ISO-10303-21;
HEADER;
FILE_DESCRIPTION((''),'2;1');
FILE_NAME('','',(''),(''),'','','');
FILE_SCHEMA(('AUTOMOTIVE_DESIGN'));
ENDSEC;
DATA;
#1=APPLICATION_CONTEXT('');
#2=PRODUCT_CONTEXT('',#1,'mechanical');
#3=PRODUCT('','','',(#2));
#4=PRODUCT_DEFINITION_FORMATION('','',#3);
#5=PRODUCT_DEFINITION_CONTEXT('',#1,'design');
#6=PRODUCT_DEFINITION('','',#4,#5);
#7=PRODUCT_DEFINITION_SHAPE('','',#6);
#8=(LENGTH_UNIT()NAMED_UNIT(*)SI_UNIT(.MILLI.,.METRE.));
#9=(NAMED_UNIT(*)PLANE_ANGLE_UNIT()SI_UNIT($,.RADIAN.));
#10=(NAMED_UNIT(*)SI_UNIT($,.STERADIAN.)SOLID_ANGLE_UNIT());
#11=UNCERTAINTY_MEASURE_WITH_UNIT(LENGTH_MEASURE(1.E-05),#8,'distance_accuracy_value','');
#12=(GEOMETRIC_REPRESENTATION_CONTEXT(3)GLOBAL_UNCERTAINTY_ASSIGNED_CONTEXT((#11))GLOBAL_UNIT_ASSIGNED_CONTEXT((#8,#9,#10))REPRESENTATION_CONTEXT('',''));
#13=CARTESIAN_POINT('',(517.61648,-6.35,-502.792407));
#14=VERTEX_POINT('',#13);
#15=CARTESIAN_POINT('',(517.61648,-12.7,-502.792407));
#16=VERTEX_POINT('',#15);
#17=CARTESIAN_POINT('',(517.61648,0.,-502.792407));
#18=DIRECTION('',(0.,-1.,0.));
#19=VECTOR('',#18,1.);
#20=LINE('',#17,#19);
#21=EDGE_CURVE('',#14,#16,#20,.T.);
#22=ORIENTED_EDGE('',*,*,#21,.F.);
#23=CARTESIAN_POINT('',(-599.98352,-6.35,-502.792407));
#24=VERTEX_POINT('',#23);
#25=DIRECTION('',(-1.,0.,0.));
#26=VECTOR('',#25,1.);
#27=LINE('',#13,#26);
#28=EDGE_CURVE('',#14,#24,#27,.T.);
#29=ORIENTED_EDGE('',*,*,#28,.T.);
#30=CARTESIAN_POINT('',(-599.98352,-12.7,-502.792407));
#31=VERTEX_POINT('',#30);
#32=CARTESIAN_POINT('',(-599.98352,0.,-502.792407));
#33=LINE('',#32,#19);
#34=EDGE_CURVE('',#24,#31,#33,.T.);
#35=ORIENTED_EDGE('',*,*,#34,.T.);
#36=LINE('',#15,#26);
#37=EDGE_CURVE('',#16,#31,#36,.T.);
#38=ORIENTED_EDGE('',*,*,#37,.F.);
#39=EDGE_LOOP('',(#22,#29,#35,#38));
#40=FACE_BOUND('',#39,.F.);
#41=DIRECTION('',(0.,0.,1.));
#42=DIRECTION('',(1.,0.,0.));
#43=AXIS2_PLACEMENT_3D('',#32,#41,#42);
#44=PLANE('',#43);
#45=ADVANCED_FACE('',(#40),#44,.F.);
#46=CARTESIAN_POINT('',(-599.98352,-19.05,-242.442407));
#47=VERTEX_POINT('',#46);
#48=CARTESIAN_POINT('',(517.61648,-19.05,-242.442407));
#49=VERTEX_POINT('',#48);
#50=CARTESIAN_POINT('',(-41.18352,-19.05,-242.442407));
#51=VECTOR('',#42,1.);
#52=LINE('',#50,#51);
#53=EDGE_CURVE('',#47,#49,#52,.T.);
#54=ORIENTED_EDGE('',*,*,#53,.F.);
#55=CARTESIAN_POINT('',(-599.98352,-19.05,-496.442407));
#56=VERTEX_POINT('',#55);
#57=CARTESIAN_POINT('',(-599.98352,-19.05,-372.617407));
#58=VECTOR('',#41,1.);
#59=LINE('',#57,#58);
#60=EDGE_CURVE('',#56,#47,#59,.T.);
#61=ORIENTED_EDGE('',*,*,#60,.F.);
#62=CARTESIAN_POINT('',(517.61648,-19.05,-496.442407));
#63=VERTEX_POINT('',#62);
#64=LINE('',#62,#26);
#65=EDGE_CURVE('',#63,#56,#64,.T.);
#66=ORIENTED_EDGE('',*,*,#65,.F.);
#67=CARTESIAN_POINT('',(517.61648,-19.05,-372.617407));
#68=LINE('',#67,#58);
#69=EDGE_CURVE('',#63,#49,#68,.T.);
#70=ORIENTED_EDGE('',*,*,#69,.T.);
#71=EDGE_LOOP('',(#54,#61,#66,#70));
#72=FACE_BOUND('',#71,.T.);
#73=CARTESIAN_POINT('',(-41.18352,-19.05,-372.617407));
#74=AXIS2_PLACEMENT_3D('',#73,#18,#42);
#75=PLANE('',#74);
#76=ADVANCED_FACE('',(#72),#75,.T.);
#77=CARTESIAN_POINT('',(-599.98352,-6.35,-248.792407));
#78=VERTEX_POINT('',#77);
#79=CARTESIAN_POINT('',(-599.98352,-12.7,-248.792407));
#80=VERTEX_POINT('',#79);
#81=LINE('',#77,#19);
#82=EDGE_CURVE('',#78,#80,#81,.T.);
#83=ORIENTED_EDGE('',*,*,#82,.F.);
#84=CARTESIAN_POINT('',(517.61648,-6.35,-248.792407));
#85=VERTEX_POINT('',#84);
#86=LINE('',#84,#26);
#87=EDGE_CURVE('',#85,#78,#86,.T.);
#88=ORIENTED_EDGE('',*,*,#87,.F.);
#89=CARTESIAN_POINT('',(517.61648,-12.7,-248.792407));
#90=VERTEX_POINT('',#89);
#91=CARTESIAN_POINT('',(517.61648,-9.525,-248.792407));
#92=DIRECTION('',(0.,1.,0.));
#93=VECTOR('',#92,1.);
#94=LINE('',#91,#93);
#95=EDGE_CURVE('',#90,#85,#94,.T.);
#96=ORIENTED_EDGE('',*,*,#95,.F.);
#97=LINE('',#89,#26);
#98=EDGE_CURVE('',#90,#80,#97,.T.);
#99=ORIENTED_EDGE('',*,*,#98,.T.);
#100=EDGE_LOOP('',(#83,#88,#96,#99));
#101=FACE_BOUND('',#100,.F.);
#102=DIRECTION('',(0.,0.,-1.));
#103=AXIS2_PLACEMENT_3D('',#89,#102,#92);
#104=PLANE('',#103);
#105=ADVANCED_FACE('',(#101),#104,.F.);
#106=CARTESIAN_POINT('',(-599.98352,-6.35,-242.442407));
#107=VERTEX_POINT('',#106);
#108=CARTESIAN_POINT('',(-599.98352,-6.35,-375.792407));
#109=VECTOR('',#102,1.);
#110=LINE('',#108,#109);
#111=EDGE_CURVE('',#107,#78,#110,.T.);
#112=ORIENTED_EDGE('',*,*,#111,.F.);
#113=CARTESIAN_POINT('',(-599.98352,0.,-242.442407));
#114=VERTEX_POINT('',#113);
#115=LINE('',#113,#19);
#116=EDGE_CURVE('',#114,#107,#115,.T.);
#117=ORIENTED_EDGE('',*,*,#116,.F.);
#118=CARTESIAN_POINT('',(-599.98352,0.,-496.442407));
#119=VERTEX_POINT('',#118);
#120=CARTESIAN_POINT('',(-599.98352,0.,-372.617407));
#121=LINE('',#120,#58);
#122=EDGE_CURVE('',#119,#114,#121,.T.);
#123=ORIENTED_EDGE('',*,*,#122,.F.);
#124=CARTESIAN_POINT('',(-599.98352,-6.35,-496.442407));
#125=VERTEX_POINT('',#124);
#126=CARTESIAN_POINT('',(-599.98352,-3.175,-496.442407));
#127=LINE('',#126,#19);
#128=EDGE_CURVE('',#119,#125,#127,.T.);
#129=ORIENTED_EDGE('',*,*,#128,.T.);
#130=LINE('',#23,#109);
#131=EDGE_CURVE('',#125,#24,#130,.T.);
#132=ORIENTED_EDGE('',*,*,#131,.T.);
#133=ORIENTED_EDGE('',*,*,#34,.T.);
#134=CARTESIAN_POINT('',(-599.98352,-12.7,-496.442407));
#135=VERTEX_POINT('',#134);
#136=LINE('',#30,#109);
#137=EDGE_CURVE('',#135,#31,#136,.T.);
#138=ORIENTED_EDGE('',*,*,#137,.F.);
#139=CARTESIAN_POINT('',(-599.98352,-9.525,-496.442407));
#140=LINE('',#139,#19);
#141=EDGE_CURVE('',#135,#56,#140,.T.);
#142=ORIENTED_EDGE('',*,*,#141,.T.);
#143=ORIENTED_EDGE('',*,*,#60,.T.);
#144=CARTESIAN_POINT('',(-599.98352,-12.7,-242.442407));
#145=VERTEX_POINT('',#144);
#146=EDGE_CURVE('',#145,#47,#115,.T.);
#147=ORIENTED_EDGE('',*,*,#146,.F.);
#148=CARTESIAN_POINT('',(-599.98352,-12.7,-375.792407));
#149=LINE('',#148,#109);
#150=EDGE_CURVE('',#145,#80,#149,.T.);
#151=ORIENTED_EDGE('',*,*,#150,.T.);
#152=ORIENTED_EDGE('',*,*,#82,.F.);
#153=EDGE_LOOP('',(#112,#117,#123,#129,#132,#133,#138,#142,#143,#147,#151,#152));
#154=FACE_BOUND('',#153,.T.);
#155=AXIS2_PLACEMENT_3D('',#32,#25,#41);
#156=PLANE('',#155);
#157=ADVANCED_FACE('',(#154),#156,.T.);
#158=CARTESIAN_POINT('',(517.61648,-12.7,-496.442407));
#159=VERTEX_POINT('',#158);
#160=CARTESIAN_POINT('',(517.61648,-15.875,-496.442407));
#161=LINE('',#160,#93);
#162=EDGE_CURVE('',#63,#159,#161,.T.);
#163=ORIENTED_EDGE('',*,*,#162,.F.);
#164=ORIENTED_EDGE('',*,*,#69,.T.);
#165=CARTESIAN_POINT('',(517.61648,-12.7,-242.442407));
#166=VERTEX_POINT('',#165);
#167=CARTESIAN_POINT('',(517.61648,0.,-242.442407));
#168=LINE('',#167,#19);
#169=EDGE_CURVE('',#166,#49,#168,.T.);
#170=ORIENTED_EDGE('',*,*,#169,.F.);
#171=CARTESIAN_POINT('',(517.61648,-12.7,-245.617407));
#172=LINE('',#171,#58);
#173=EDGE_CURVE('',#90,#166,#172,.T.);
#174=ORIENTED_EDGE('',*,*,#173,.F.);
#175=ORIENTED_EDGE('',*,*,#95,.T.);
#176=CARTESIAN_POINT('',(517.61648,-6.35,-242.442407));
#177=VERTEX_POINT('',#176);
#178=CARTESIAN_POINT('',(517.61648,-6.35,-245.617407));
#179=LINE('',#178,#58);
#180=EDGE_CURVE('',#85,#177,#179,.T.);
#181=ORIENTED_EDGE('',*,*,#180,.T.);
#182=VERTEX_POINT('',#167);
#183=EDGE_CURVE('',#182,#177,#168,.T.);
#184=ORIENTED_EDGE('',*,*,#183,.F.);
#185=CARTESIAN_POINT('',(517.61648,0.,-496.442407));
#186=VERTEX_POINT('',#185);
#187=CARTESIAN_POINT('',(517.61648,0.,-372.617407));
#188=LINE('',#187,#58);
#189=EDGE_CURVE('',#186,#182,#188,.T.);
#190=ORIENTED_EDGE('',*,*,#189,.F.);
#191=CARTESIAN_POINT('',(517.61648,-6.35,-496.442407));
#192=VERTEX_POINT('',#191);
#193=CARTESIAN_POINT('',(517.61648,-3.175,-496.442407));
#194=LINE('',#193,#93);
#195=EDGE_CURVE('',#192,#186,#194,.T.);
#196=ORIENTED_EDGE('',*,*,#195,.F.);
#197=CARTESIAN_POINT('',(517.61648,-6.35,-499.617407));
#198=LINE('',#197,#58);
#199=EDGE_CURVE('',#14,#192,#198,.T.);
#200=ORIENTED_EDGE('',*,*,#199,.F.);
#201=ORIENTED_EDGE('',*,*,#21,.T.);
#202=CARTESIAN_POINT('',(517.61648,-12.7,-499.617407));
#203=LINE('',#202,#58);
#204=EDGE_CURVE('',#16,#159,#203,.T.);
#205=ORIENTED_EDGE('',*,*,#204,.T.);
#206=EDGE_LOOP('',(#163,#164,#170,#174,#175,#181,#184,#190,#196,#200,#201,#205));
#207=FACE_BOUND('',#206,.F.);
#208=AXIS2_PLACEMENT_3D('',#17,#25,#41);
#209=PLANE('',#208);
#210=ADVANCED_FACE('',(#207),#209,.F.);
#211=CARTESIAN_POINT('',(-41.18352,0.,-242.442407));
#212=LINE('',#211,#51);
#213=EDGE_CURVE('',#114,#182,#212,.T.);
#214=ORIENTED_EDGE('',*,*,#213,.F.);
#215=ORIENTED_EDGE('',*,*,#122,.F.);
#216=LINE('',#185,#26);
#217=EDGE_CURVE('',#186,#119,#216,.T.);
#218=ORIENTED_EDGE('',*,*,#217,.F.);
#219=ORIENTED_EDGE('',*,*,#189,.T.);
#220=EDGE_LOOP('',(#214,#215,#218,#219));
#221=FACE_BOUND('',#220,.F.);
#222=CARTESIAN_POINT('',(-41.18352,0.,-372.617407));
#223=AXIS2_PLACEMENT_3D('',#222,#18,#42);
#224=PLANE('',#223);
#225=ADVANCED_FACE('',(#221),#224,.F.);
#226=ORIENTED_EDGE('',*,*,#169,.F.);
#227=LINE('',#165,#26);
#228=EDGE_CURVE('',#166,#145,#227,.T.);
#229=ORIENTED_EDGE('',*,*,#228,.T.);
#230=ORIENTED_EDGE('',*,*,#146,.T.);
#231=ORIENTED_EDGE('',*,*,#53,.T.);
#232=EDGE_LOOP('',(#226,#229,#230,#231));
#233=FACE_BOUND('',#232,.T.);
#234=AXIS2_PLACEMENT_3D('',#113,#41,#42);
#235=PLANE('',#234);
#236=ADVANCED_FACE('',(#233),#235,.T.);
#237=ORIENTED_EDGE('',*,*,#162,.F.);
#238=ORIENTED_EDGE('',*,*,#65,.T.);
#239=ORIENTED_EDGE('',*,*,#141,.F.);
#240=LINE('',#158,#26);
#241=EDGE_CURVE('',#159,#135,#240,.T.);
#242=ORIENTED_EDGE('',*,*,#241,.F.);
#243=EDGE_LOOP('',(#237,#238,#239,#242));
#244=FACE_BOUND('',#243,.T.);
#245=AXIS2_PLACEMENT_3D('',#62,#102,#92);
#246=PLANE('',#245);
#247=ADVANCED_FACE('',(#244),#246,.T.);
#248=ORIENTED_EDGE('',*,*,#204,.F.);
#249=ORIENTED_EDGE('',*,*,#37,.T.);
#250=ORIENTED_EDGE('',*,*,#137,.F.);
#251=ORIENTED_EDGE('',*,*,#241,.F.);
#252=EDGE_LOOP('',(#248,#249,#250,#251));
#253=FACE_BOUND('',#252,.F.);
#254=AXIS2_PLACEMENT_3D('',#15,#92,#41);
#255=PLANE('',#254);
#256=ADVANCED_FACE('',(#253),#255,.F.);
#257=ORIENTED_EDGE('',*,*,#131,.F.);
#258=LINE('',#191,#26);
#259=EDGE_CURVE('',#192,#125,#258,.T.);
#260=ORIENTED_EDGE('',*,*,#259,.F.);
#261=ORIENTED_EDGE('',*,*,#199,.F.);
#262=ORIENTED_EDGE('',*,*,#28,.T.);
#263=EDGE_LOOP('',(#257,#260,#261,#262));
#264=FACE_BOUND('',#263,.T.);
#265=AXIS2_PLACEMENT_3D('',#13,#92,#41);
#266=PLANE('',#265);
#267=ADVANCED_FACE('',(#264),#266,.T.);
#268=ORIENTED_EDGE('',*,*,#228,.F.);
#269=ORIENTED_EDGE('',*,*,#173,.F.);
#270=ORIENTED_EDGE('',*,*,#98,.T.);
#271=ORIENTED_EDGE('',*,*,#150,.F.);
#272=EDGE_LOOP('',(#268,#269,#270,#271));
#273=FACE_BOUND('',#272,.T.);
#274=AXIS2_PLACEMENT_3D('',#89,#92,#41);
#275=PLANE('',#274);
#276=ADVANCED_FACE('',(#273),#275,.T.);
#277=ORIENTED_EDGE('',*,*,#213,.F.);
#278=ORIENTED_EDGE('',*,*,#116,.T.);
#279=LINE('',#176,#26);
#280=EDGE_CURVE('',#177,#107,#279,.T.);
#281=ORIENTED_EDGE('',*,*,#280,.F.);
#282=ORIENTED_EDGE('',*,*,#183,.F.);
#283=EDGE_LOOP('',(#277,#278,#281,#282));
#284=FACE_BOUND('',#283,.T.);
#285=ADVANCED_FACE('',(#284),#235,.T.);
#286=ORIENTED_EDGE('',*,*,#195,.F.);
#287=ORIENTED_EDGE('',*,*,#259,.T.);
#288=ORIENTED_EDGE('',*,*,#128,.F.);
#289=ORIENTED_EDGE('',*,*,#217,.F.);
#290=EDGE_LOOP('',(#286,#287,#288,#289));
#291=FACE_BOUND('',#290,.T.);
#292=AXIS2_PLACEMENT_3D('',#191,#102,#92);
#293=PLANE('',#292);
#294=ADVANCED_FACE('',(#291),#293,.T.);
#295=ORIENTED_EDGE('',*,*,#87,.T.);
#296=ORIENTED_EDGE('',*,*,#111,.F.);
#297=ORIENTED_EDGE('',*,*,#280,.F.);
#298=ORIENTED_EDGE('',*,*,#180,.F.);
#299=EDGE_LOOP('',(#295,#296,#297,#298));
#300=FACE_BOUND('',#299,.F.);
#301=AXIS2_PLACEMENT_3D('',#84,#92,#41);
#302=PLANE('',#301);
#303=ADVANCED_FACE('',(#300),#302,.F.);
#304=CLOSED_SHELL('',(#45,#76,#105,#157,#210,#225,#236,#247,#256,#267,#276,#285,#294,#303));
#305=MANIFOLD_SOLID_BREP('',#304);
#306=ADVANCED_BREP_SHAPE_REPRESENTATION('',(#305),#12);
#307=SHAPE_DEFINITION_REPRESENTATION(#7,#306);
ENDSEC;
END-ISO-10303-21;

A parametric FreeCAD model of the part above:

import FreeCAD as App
import Part
import Sketcher
from FreeCAD import Vector
Q = App.Units.Quantity


def add_polygon(sketch, points):
    """Adds a closed chain of lines whose ends are joined by coincident constraints."""
    first, n = sketch.GeometryCount, len(points)
    for a, b in zip(points, points[1:] + points[:1]):
        sketch.addGeometry(Part.LineSegment(App.Vector(*a, 0), App.Vector(*b, 0)), False)
    for i in range(n):
        sketch.addConstraint(Sketcher.Constraint("Coincident", first + i, 2, first + (i + 1) % n, 1))

doc = App.newDocument("Part")
body = doc.addObject("PartDesign::Body", "Body")

sketch1 = body.newObject("Sketcher::SketchObject", "Sketch")
sketch1.AttachmentSupport = (doc.getObject("XZ_Plane"), [""])
sketch1.MapMode = "FlatFace"
add_polygon(sketch1, [(-600, -242), (-600, -503), (518, -503), (518, -242)])
sketch1.addConstraint([
    Sketcher.Constraint("Vertical", 0),
    Sketcher.Constraint("Horizontal", 1),
    Sketcher.Constraint("Vertical", 2),
    Sketcher.Constraint("Horizontal", 3),
    Sketcher.Constraint("DistanceX", 1, 1, 1, 2, Q("44 in")),
    Sketcher.Constraint("DistanceY", 0, 2, 0, 1, Q("10.25 in")),
    Sketcher.Constraint("DistanceX", 0, 2, -1, 1, 599.98352),
    Sketcher.Constraint("DistanceY", 0, 2, -1, 1, 502.792407),
])
pad1 = body.newObject("PartDesign::Pad", "Pad")
pad1.Profile = sketch1
pad1.Length = Q("0.75 in")

sketch2 = body.newObject("Sketcher::SketchObject", "Sketch001")
sketch2.AttachmentSupport = (doc.getObject("YZ_Plane"), [""])
sketch2.MapMode = "FlatFace"
sketch2.AttachmentOffset = App.Placement(Vector(0, 0, 517.61648), App.Rotation())
add_polygon(sketch2, [(-13, -242), (-13, -249), (-6, -249), (-6, -242)])
sketch2.addConstraint([
    Sketcher.Constraint("Vertical", 0),
    Sketcher.Constraint("Horizontal", 1),
    Sketcher.Constraint("Vertical", 2),
    Sketcher.Constraint("Horizontal", 3),
    Sketcher.Constraint("Equal", 3, 0),
    Sketcher.Constraint("DistanceX", 1, 1, 1, 2, Q("0.25 in")),
    Sketcher.Constraint("DistanceX", 0, 2, -1, 1, Q("0.5 in")),
    Sketcher.Constraint("DistanceY", 0, 2, -1, 1, 248.792407),
])
pocket1 = body.newObject("PartDesign::Pocket", "Pocket")
pocket1.Profile = sketch2
pocket1.Type = "ThroughAll"

sketch3 = body.newObject("Sketcher::SketchObject", "Sketch002")
sketch3.AttachmentSupport = (doc.getObject("YZ_Plane"), [""])
sketch3.MapMode = "FlatFace"
sketch3.AttachmentOffset = App.Placement(Vector(0, 0, 517.61648), App.Rotation())
add_polygon(sketch3, [(-19, -496), (-19, -503), (-13, -503), (-13, -496)])
add_polygon(sketch3, [(-6, -496), (-6, -503), (0, -503), (0, -496)])
add_polygon(sketch3, [(-13, -242), (-13, -249), (-6, -249), (-6, -242)])
sketch3.addConstraint([
    Sketcher.Constraint("Vertical", 0),
    Sketcher.Constraint("Horizontal", 1),
    Sketcher.Constraint("Vertical", 2),
    Sketcher.Constraint("Horizontal", 3),
    Sketcher.Constraint("Vertical", 4),
    Sketcher.Constraint("Horizontal", 5),
    Sketcher.Constraint("Vertical", 6),
    Sketcher.Constraint("Horizontal", 7),
    Sketcher.Constraint("Vertical", 8),
    Sketcher.Constraint("Horizontal", 9),
    Sketcher.Constraint("Vertical", 10),
    Sketcher.Constraint("Horizontal", 11),
    Sketcher.Constraint("PointOnObject", 5, 2, -2),
    Sketcher.Constraint("Horizontal", 1, 2, 4, 2),
    Sketcher.Constraint("Horizontal", 3, 2, 6, 2),
    Sketcher.Constraint("Vertical", 2, 2, 8, 2),
    Sketcher.Constraint("Vertical", 7, 2, 9, 2),
    Sketcher.Constraint("Equal", 3, 5),
    Sketcher.Constraint("Equal", 7, 9),
    Sketcher.Constraint("Equal", 11, 0),
    Sketcher.Constraint("Equal", 6, 8),
    Sketcher.Constraint("DistanceY", 1, 2, 8, 2, Q("10 in")),
    Sketcher.Constraint("DistanceX", 1, 1, 1, 2, Q("0.25 in")),
    Sketcher.Constraint("DistanceY", 0, 2, -1, 1, 502.792407),
])
pocket2 = body.newObject("PartDesign::Pocket", "Pocket001")
pocket2.Profile = sketch3
pocket2.Type = "ThroughAll"

doc.recompute()
